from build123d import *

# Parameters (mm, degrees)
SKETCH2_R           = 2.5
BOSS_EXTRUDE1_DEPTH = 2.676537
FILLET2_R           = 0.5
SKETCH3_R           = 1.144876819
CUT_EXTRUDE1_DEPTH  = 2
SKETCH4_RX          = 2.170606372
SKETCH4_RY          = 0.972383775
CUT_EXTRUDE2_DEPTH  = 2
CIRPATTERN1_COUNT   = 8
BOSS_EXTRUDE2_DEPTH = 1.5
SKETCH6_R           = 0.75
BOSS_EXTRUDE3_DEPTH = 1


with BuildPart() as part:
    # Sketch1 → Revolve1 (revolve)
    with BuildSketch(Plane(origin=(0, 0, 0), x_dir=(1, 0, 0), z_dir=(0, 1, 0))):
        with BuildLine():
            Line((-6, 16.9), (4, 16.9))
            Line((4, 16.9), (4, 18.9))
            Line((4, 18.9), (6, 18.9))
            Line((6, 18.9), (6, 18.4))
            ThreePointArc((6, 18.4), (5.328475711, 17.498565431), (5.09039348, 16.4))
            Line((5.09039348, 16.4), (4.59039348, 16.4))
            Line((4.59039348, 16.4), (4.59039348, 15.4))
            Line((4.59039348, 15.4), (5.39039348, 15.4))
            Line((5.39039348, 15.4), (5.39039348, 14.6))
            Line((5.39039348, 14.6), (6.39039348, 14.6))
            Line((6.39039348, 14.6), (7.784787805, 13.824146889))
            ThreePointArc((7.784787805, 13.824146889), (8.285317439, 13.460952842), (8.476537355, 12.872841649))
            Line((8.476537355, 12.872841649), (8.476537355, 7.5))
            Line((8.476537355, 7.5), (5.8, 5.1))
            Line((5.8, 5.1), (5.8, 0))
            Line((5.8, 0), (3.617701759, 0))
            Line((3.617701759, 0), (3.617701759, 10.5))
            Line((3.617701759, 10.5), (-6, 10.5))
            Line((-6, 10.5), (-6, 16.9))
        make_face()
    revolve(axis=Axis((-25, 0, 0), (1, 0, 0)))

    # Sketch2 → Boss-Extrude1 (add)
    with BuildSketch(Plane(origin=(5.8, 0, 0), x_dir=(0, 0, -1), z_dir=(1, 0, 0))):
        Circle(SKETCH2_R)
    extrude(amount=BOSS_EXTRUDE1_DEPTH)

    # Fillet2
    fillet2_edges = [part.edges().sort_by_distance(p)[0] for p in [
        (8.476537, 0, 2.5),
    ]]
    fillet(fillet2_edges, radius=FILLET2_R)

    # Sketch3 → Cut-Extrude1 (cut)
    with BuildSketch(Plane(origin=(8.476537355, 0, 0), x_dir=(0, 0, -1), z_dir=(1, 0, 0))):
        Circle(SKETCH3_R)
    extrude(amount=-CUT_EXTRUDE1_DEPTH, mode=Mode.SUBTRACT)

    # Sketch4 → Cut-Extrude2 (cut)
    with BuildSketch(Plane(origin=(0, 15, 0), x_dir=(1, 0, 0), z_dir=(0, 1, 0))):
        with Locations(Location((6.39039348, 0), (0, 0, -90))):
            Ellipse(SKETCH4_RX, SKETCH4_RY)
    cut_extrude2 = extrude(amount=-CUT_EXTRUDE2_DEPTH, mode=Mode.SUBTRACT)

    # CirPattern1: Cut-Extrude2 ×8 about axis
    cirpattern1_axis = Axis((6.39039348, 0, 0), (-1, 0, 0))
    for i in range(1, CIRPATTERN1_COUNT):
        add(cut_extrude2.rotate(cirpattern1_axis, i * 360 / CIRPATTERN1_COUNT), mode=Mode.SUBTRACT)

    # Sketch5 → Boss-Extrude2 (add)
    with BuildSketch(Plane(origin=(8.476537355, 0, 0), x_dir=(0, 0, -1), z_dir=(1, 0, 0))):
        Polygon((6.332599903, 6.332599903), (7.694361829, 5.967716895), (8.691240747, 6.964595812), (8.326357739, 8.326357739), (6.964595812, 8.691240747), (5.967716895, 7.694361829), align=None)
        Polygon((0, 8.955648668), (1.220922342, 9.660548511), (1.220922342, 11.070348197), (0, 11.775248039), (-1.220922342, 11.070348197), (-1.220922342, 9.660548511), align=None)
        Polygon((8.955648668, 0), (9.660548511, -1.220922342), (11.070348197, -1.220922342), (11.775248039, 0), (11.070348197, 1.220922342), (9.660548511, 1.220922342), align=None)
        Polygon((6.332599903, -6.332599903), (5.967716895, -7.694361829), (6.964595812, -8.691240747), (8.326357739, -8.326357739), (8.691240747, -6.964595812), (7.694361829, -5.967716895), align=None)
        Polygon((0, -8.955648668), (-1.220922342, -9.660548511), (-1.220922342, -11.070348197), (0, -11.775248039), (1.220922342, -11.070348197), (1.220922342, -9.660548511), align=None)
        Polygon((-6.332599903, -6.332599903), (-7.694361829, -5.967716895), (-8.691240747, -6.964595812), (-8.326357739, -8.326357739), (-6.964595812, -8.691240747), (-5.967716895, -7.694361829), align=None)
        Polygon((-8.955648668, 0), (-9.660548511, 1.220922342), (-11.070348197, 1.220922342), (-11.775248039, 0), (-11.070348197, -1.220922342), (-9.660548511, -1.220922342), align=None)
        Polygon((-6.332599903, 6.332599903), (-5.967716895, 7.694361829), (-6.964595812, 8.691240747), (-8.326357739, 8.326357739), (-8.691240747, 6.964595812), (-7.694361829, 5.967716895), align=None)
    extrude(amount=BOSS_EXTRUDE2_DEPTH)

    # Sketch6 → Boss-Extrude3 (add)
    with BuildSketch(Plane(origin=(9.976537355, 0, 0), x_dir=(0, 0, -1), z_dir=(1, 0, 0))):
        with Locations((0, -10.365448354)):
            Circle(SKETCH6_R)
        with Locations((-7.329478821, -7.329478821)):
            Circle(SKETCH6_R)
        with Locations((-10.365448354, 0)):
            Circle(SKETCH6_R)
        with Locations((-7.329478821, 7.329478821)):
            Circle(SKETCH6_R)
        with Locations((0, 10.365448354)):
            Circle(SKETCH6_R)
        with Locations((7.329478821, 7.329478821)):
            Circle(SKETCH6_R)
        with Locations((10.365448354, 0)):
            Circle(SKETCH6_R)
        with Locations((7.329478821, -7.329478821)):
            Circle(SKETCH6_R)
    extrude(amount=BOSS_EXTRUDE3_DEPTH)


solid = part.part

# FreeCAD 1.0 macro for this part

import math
import FreeCAD as App
import Part
import Sketcher
Q = App.Units.Quantity


def edges_at(feature, points):
    """Names of the edges that pass closest to the given points."""
    edges = feature.Shape.Edges
    near = lambda p: min(range(len(edges)), key=lambda i: edges[i].distToShape(Part.Vertex(*p))[0])
    return sorted({f"Edge{near(p) + 1}" for p in points})

doc = App.newDocument("Part")
body = doc.addObject("PartDesign::Body", "Body")

sketch1 = body.newObject("Sketcher::SketchObject", "Sketch")
sketch1.AttachmentSupport = (doc.getObject("XZ_Plane"), [""])
sketch1.MapMode = "FlatFace"
sketch1.addGeometry(Part.LineSegment(App.Vector(4, -16.9, 0), App.Vector(-6, -16.9, 0)), False)
sketch1.addGeometry(Part.LineSegment(App.Vector(-6, -16.9, 0), App.Vector(-6, -10.5, 0)), False)
sketch1.addGeometry(Part.LineSegment(App.Vector(-6, -10.5, 0), App.Vector(3.617702, -10.5, 0)), False)
sketch1.addGeometry(Part.LineSegment(App.Vector(3.617702, -10.5, 0), App.Vector(3.617702, 0, 0)), False)
sketch1.addGeometry(Part.LineSegment(App.Vector(3.617702, 0, 0), App.Vector(5.8, 0, 0)), False)
sketch1.addGeometry(Part.LineSegment(App.Vector(5.8, 0, 0), App.Vector(5.8, -5.1, 0)), False)
sketch1.addGeometry(Part.LineSegment(App.Vector(5.8, -5.1, 0), App.Vector(8.476537, -7.5, 0)), False)
sketch1.addGeometry(Part.LineSegment(App.Vector(8.476537, -7.5, 0), App.Vector(8.476537, -12.872842, 0)), False)
sketch1.addGeometry(Part.ArcOfCircle(Part.Circle(App.Vector(7.476537, -12.872842, 0), App.Vector(0, 0, 1), 1), math.radians(-72.046174), math.radians(0)), False)
sketch1.addGeometry(Part.LineSegment(App.Vector(7.784788, -13.824147, 0), App.Vector(6.390393, -14.6, 0)), False)
sketch1.addGeometry(Part.LineSegment(App.Vector(6.390393, -14.6, 0), App.Vector(5.390393, -14.6, 0)), False)
sketch1.addGeometry(Part.LineSegment(App.Vector(5.390393, -14.6, 0), App.Vector(5.390393, -15.4, 0)), False)
sketch1.addGeometry(Part.LineSegment(App.Vector(5.390393, -15.4, 0), App.Vector(4.590393, -15.4, 0)), False)
sketch1.addGeometry(Part.LineSegment(App.Vector(4.590393, -15.4, 0), App.Vector(4.590393, -16.4, 0)), False)
sketch1.addGeometry(Part.LineSegment(App.Vector(4.590393, -16.4, 0), App.Vector(5.090393, -16.4, 0)), False)
sketch1.addGeometry(Part.ArcOfCircle(Part.Circle(App.Vector(7.74395, -16.4, 0), App.Vector(0, 0, 1), 2.653556), math.radians(180), math.radians(228.912391)), False)
sketch1.addGeometry(Part.LineSegment(App.Vector(6, -18.4, 0), App.Vector(6, -18.9, 0)), False)
sketch1.addGeometry(Part.LineSegment(App.Vector(6, -18.9, 0), App.Vector(4, -18.9, 0)), False)
sketch1.addGeometry(Part.LineSegment(App.Vector(4, -18.9, 0), App.Vector(4, -16.9, 0)), False)
sketch1.addConstraint(Sketcher.Constraint("Coincident", 0, 2, 1, 1))
sketch1.addConstraint(Sketcher.Constraint("Coincident", 1, 2, 2, 1))
sketch1.addConstraint(Sketcher.Constraint("Coincident", 2, 2, 3, 1))
sketch1.addConstraint(Sketcher.Constraint("Coincident", 3, 2, 4, 1))
sketch1.addConstraint(Sketcher.Constraint("Coincident", 4, 2, 5, 1))
sketch1.addConstraint(Sketcher.Constraint("Coincident", 5, 2, 6, 1))
sketch1.addConstraint(Sketcher.Constraint("Coincident", 6, 2, 7, 1))
sketch1.addConstraint(Sketcher.Constraint("Tangent", 7, 2, 8, 2))
sketch1.addConstraint(Sketcher.Constraint("Coincident", 8, 1, 9, 1))
sketch1.addConstraint(Sketcher.Constraint("Coincident", 9, 2, 10, 1))
sketch1.addConstraint(Sketcher.Constraint("Coincident", 10, 2, 11, 1))
sketch1.addConstraint(Sketcher.Constraint("Coincident", 11, 2, 12, 1))
sketch1.addConstraint(Sketcher.Constraint("Coincident", 12, 2, 13, 1))
sketch1.addConstraint(Sketcher.Constraint("Coincident", 13, 2, 14, 1))
sketch1.addConstraint(Sketcher.Constraint("Coincident", 14, 2, 15, 1))
sketch1.addConstraint(Sketcher.Constraint("Coincident", 15, 2, 16, 1))
sketch1.addConstraint(Sketcher.Constraint("Coincident", 16, 2, 17, 1))
sketch1.addConstraint(Sketcher.Constraint("Coincident", 17, 2, 18, 1))
sketch1.addConstraint(Sketcher.Constraint("Coincident", 18, 2, 0, 1))
sketch1.addConstraint(Sketcher.Constraint("Horizontal", 0))
sketch1.addConstraint(Sketcher.Constraint("Vertical", 1))
sketch1.addConstraint(Sketcher.Constraint("Horizontal", 2))
sketch1.addConstraint(Sketcher.Constraint("Vertical", 3))
sketch1.addConstraint(Sketcher.Constraint("Horizontal", 4))
sketch1.addConstraint(Sketcher.Constraint("Vertical", 5))
sketch1.addConstraint(Sketcher.Constraint("Vertical", 7))
sketch1.addConstraint(Sketcher.Constraint("Horizontal", 10))
sketch1.addConstraint(Sketcher.Constraint("Vertical", 11))
sketch1.addConstraint(Sketcher.Constraint("Horizontal", 12))
sketch1.addConstraint(Sketcher.Constraint("Vertical", 13))
sketch1.addConstraint(Sketcher.Constraint("Horizontal", 14))
sketch1.addConstraint(Sketcher.Constraint("Vertical", 16))
sketch1.addConstraint(Sketcher.Constraint("Horizontal", 17))
sketch1.addConstraint(Sketcher.Constraint("Vertical", 18))
sketch1.addConstraint(Sketcher.Constraint("PointOnObject", 3, 2, -1))
sketch1.addConstraint(Sketcher.Constraint("Horizontal", 15, 3, 13, 2))
sketch1.addConstraint(Sketcher.Constraint("Equal", 12, 11))
sketch1.addConstraint(Sketcher.Constraint("Equal", 10, 13))
sketch1.addConstraint(Sketcher.Constraint("Equal", 14, 16))
sketch1.addConstraint(Sketcher.Constraint("Equal", 17, 18))
sketch1.addConstraint(Sketcher.Constraint("Radius", 8, 1.0))
sketch1.addConstraint(Sketcher.Constraint("DistanceX", 0, 2, 0, 1, 10.0))
sketch1.addConstraint(Sketcher.Constraint("DistanceX", 10, 2, 10, 1, 1.0))
sketch1.addConstraint(Sketcher.Constraint("DistanceX", 17, 2, 17, 1, 2.0))
sketch1.addConstraint(Sketcher.Constraint("DistanceX", 12, 2, 12, 1, 0.8))
sketch1.addConstraint(Sketcher.Constraint("DistanceX", 14, 1, 14, 2, 0.5))
sketch1.addConstraint(Sketcher.Constraint("DistanceY", 1, 1, 1, 2, 6.4))
sketch1.addConstraint(Sketcher.Constraint("DistanceY", 3, 1, 3, 2, 10.5))
sketch1.addConstraint(Sketcher.Constraint("DistanceY", 5, 2, 5, 1, 5.1))
sketch1.addConstraint(Sketcher.Constraint("DistanceX", 0, 2, -1, 1, 6.0))
sketch1.addConstraint(Sketcher.Constraint("DistanceY", 2, 2, 6, 2, 3.0))
sketch1.addConstraint(Sketcher.Constraint("DistanceY", 15, 2, 14, 2, 2.0))
sketch1.addConstraint(Sketcher.Constraint("DistanceX", -1, 1, 4, 2, 5.8))
sketch1.addConstraint(Sketcher.Constraint("DistanceX", 2, 1, 2, 2, 9.617702))
sketch1.addConstraint(Sketcher.Constraint("Radius", 15, 2.653556))
sketch1.addConstraint(Sketcher.Constraint("DistanceY", 7, 2, 7, 1, 5.372842))
sketch1.addConstraint(Sketcher.Constraint("DistanceX", 8, 3, 8, 1, 0.30825))
sketch1.addConstraint(Sketcher.Constraint("DistanceX", 15, 3, 8, 1, 0.040838))
revolution = body.newObject("PartDesign::Revolution", "Revolution")
revolution.Profile = sketch1
revolution.ReferenceAxis = (sketch1, ["H_Axis"])
revolution.Angle = 360

sketch2 = body.newObject("Sketcher::SketchObject", "Sketch001")
sketch2.AttachmentSupport = (doc.getObject("YZ_Plane"), [""])
sketch2.MapMode = "FlatFace"
sketch2.AttachmentOffset = App.Placement(App.Vector(0, 0, 5.8), App.Rotation())
sketch2.addGeometry(Part.Circle(App.Vector(0, 0, 0), App.Vector(0, 0, 1), 2.5), False)
sketch2.addConstraint(Sketcher.Constraint("Coincident", 0, 3, -1, 1))
sketch2.addConstraint(Sketcher.Constraint("Diameter", 0, 5.0))
pad1 = body.newObject("PartDesign::Pad", "Pad")
pad1.Profile = sketch2
pad1.Length = 2.676537
doc.recompute()

fillet = body.newObject("PartDesign::Fillet", "Fillet")
fillet.Base = (pad1, edges_at(pad1, [(8.477, 0, 2.5)]))
fillet.Radius = 0.5

sketch3 = body.newObject("Sketcher::SketchObject", "Sketch002")
sketch3.AttachmentSupport = (doc.getObject("YZ_Plane"), [""])
sketch3.MapMode = "FlatFace"
sketch3.AttachmentOffset = App.Placement(App.Vector(0, 0, 8.476537), App.Rotation())
sketch3.addGeometry(Part.Circle(App.Vector(0, 0, 0), App.Vector(0, 0, 1), 1.144877), False)
sketch3.addConstraint(Sketcher.Constraint("Coincident", 0, 3, -1, 1))
sketch3.addConstraint(Sketcher.Constraint("Diameter", 0, 2.289754))
pocket1 = body.newObject("PartDesign::Pocket", "Pocket")
pocket1.Profile = sketch3
pocket1.Length = 2

sketch4 = body.newObject("Sketcher::SketchObject", "Sketch003")
sketch4.AttachmentSupport = (doc.getObject("XZ_Plane"), [""])
sketch4.MapMode = "FlatFace"
sketch4.AttachmentOffset = App.Placement(App.Vector(0, 0, -15), App.Rotation())
sketch4.addGeometry(Part.Ellipse(App.Vector(6.390393, 2.170606, 0), App.Vector(5.41801, 0, 0), App.Vector(6.390393, 0, 0)), False)
sketch4.addConstraint(Sketcher.Constraint("Block", 0))
pocket2 = body.newObject("PartDesign::Pocket", "Pocket001")
pocket2.Profile = sketch4
pocket2.Length = 2
pocket2.Reversed = True
doc.recompute()

polarpattern = body.newObject("PartDesign::PolarPattern", "PolarPattern")
polarpattern.Originals = [pocket2]
polarpattern.Axis = (doc.getObject("X_Axis"), [""])
polarpattern.Angle = 360
polarpattern.Occurrences = 8
body.Tip = polarpattern

sketch5 = body.newObject("Sketcher::SketchObject", "Sketch004")
sketch5.AttachmentSupport = (doc.getObject("YZ_Plane"), [""])
sketch5.MapMode = "FlatFace"
sketch5.AttachmentOffset = App.Placement(App.Vector(0, 0, 8.476537), App.Rotation())
sketch5.addGeometry(Part.LineSegment(App.Vector(6.3326, -6.3326, 0), App.Vector(5.967717, -7.694362, 0)), False)
sketch5.addGeometry(Part.LineSegment(App.Vector(5.967717, -7.694362, 0), App.Vector(6.964596, -8.691241, 0)), False)
sketch5.addGeometry(Part.LineSegment(App.Vector(6.964596, -8.691241, 0), App.Vector(8.326358, -8.326358, 0)), False)
sketch5.addGeometry(Part.LineSegment(App.Vector(8.326358, -8.326358, 0), App.Vector(8.691241, -6.964596, 0)), False)
sketch5.addGeometry(Part.LineSegment(App.Vector(8.691241, -6.964596, 0), App.Vector(7.694362, -5.967717, 0)), False)
sketch5.addGeometry(Part.LineSegment(App.Vector(7.694362, -5.967717, 0), App.Vector(6.3326, -6.3326, 0)), False)
sketch5.addGeometry(Part.LineSegment(App.Vector(8.955649, 0, 0), App.Vector(9.660549, -1.220922, 0)), False)
sketch5.addGeometry(Part.LineSegment(App.Vector(9.660549, -1.220922, 0), App.Vector(11.070348, -1.220922, 0)), False)
sketch5.addGeometry(Part.LineSegment(App.Vector(11.070348, -1.220922, 0), App.Vector(11.775248, 0, 0)), False)
sketch5.addGeometry(Part.LineSegment(App.Vector(11.775248, 0, 0), App.Vector(11.070348, 1.220922, 0)), False)
sketch5.addGeometry(Part.LineSegment(App.Vector(11.070348, 1.220922, 0), App.Vector(9.660549, 1.220922, 0)), False)
sketch5.addGeometry(Part.LineSegment(App.Vector(9.660549, 1.220922, 0), App.Vector(8.955649, 0, 0)), False)
sketch5.addGeometry(Part.LineSegment(App.Vector(0, -8.955649, 0), App.Vector(-1.220922, -9.660549, 0)), False)
sketch5.addGeometry(Part.LineSegment(App.Vector(-1.220922, -9.660549, 0), App.Vector(-1.220922, -11.070348, 0)), False)
sketch5.addGeometry(Part.LineSegment(App.Vector(-1.220922, -11.070348, 0), App.Vector(0, -11.775248, 0)), False)
sketch5.addGeometry(Part.LineSegment(App.Vector(0, -11.775248, 0), App.Vector(1.220922, -11.070348, 0)), False)
sketch5.addGeometry(Part.LineSegment(App.Vector(1.220922, -11.070348, 0), App.Vector(1.220922, -9.660549, 0)), False)
sketch5.addGeometry(Part.LineSegment(App.Vector(1.220922, -9.660549, 0), App.Vector(0, -8.955649, 0)), False)
sketch5.addGeometry(Part.LineSegment(App.Vector(-6.3326, -6.3326, 0), App.Vector(-7.694362, -5.967717, 0)), False)
sketch5.addGeometry(Part.LineSegment(App.Vector(-7.694362, -5.967717, 0), App.Vector(-8.691241, -6.964596, 0)), False)
sketch5.addGeometry(Part.LineSegment(App.Vector(-8.691241, -6.964596, 0), App.Vector(-8.326358, -8.326358, 0)), False)
sketch5.addGeometry(Part.LineSegment(App.Vector(-8.326358, -8.326358, 0), App.Vector(-6.964596, -8.691241, 0)), False)
sketch5.addGeometry(Part.LineSegment(App.Vector(-6.964596, -8.691241, 0), App.Vector(-5.967717, -7.694362, 0)), False)
sketch5.addGeometry(Part.LineSegment(App.Vector(-5.967717, -7.694362, 0), App.Vector(-6.3326, -6.3326, 0)), False)
sketch5.addGeometry(Part.LineSegment(App.Vector(-8.955649, 0, 0), App.Vector(-9.660549, 1.220922, 0)), False)
sketch5.addGeometry(Part.LineSegment(App.Vector(-9.660549, 1.220922, 0), App.Vector(-11.070348, 1.220922, 0)), False)
sketch5.addGeometry(Part.LineSegment(App.Vector(-11.070348, 1.220922, 0), App.Vector(-11.775248, 0, 0)), False)
sketch5.addGeometry(Part.LineSegment(App.Vector(-11.775248, 0, 0), App.Vector(-11.070348, -1.220922, 0)), False)
sketch5.addGeometry(Part.LineSegment(App.Vector(-11.070348, -1.220922, 0), App.Vector(-9.660549, -1.220922, 0)), False)
sketch5.addGeometry(Part.LineSegment(App.Vector(-9.660549, -1.220922, 0), App.Vector(-8.955649, 0, 0)), False)
sketch5.addGeometry(Part.LineSegment(App.Vector(-6.3326, 6.3326, 0), App.Vector(-5.967717, 7.694362, 0)), False)
sketch5.addGeometry(Part.LineSegment(App.Vector(-5.967717, 7.694362, 0), App.Vector(-6.964596, 8.691241, 0)), False)
sketch5.addGeometry(Part.LineSegment(App.Vector(-6.964596, 8.691241, 0), App.Vector(-8.326358, 8.326358, 0)), False)
sketch5.addGeometry(Part.LineSegment(App.Vector(-8.326358, 8.326358, 0), App.Vector(-8.691241, 6.964596, 0)), False)
sketch5.addGeometry(Part.LineSegment(App.Vector(-8.691241, 6.964596, 0), App.Vector(-7.694362, 5.967717, 0)), False)
sketch5.addGeometry(Part.LineSegment(App.Vector(-7.694362, 5.967717, 0), App.Vector(-6.3326, 6.3326, 0)), False)
sketch5.addGeometry(Part.LineSegment(App.Vector(0, 8.955649, 0), App.Vector(1.220922, 9.660549, 0)), False)
sketch5.addGeometry(Part.LineSegment(App.Vector(1.220922, 9.660549, 0), App.Vector(1.220922, 11.070348, 0)), False)
sketch5.addGeometry(Part.LineSegment(App.Vector(1.220922, 11.070348, 0), App.Vector(0, 11.775248, 0)), False)
sketch5.addGeometry(Part.LineSegment(App.Vector(0, 11.775248, 0), App.Vector(-1.220922, 11.070348, 0)), False)
sketch5.addGeometry(Part.LineSegment(App.Vector(-1.220922, 11.070348, 0), App.Vector(-1.220922, 9.660549, 0)), False)
sketch5.addGeometry(Part.LineSegment(App.Vector(-1.220922, 9.660549, 0), App.Vector(0, 8.955649, 0)), False)
sketch5.addGeometry(Part.LineSegment(App.Vector(6.3326, 6.3326, 0), App.Vector(7.694362, 5.967717, 0)), False)
sketch5.addGeometry(Part.LineSegment(App.Vector(7.694362, 5.967717, 0), App.Vector(8.691241, 6.964596, 0)), False)
sketch5.addGeometry(Part.LineSegment(App.Vector(8.691241, 6.964596, 0), App.Vector(8.326358, 8.326358, 0)), False)
sketch5.addGeometry(Part.LineSegment(App.Vector(8.326358, 8.326358, 0), App.Vector(6.964596, 8.691241, 0)), False)
sketch5.addGeometry(Part.LineSegment(App.Vector(6.964596, 8.691241, 0), App.Vector(5.967717, 7.694362, 0)), False)
sketch5.addGeometry(Part.LineSegment(App.Vector(5.967717, 7.694362, 0), App.Vector(6.3326, 6.3326, 0)), False)
sketch5.addConstraint(Sketcher.Constraint("Coincident", 0, 2, 1, 1))
sketch5.addConstraint(Sketcher.Constraint("Coincident", 1, 2, 2, 1))
sketch5.addConstraint(Sketcher.Constraint("Coincident", 2, 2, 3, 1))
sketch5.addConstraint(Sketcher.Constraint("Coincident", 3, 2, 4, 1))
sketch5.addConstraint(Sketcher.Constraint("Coincident", 4, 2, 5, 1))
sketch5.addConstraint(Sketcher.Constraint("Coincident", 5, 2, 0, 1))
sketch5.addConstraint(Sketcher.Constraint("Coincident", 6, 2, 7, 1))
sketch5.addConstraint(Sketcher.Constraint("Coincident", 7, 2, 8, 1))
sketch5.addConstraint(Sketcher.Constraint("Coincident", 8, 2, 9, 1))
sketch5.addConstraint(Sketcher.Constraint("Coincident", 9, 2, 10, 1))
sketch5.addConstraint(Sketcher.Constraint("Coincident", 10, 2, 11, 1))
sketch5.addConstraint(Sketcher.Constraint("Coincident", 11, 2, 6, 1))
sketch5.addConstraint(Sketcher.Constraint("Coincident", 12, 2, 13, 1))
sketch5.addConstraint(Sketcher.Constraint("Coincident", 13, 2, 14, 1))
sketch5.addConstraint(Sketcher.Constraint("Coincident", 14, 2, 15, 1))
sketch5.addConstraint(Sketcher.Constraint("Coincident", 15, 2, 16, 1))
sketch5.addConstraint(Sketcher.Constraint("Coincident", 16, 2, 17, 1))
sketch5.addConstraint(Sketcher.Constraint("Coincident", 17, 2, 12, 1))
sketch5.addConstraint(Sketcher.Constraint("Coincident", 18, 2, 19, 1))
sketch5.addConstraint(Sketcher.Constraint("Coincident", 19, 2, 20, 1))
sketch5.addConstraint(Sketcher.Constraint("Coincident", 20, 2, 21, 1))
sketch5.addConstraint(Sketcher.Constraint("Coincident", 21, 2, 22, 1))
sketch5.addConstraint(Sketcher.Constraint("Coincident", 22, 2, 23, 1))
sketch5.addConstraint(Sketcher.Constraint("Coincident", 23, 2, 18, 1))
sketch5.addConstraint(Sketcher.Constraint("Coincident", 24, 2, 25, 1))
sketch5.addConstraint(Sketcher.Constraint("Coincident", 25, 2, 26, 1))
sketch5.addConstraint(Sketcher.Constraint("Coincident", 26, 2, 27, 1))
sketch5.addConstraint(Sketcher.Constraint("Coincident", 27, 2, 28, 1))
sketch5.addConstraint(Sketcher.Constraint("Coincident", 28, 2, 29, 1))
sketch5.addConstraint(Sketcher.Constraint("Coincident", 29, 2, 24, 1))
sketch5.addConstraint(Sketcher.Constraint("Coincident", 30, 2, 31, 1))
sketch5.addConstraint(Sketcher.Constraint("Coincident", 31, 2, 32, 1))
sketch5.addConstraint(Sketcher.Constraint("Coincident", 32, 2, 33, 1))
sketch5.addConstraint(Sketcher.Constraint("Coincident", 33, 2, 34, 1))
sketch5.addConstraint(Sketcher.Constraint("Coincident", 34, 2, 35, 1))
sketch5.addConstraint(Sketcher.Constraint("Coincident", 35, 2, 30, 1))
sketch5.addConstraint(Sketcher.Constraint("Coincident", 36, 2, 37, 1))
sketch5.addConstraint(Sketcher.Constraint("Coincident", 37, 2, 38, 1))
sketch5.addConstraint(Sketcher.Constraint("Coincident", 38, 2, 39, 1))
sketch5.addConstraint(Sketcher.Constraint("Coincident", 39, 2, 40, 1))
sketch5.addConstraint(Sketcher.Constraint("Coincident", 40, 2, 41, 1))
sketch5.addConstraint(Sketcher.Constraint("Coincident", 41, 2, 36, 1))
sketch5.addConstraint(Sketcher.Constraint("Coincident", 42, 2, 43, 1))
sketch5.addConstraint(Sketcher.Constraint("Coincident", 43, 2, 44, 1))
sketch5.addConstraint(Sketcher.Constraint("Coincident", 44, 2, 45, 1))
sketch5.addConstraint(Sketcher.Constraint("Coincident", 45, 2, 46, 1))
sketch5.addConstraint(Sketcher.Constraint("Coincident", 46, 2, 47, 1))
sketch5.addConstraint(Sketcher.Constraint("Coincident", 47, 2, 42, 1))
sketch5.addConstraint(Sketcher.Constraint("Horizontal", 7))
sketch5.addConstraint(Sketcher.Constraint("Horizontal", 10))
sketch5.addConstraint(Sketcher.Constraint("Vertical", 13))
sketch5.addConstraint(Sketcher.Constraint("Vertical", 16))
sketch5.addConstraint(Sketcher.Constraint("Horizontal", 25))
sketch5.addConstraint(Sketcher.Constraint("Horizontal", 28))
sketch5.addConstraint(Sketcher.Constraint("Vertical", 37))
sketch5.addConstraint(Sketcher.Constraint("Vertical", 40))
sketch5.addConstraint(Sketcher.Constraint("Symmetric", 6, 2, 24, 2, -1, 1))
sketch5.addConstraint(Sketcher.Constraint("Symmetric", 8, 2, 26, 2, -1, 1))
sketch5.addConstraint(Sketcher.Constraint("Symmetric", 9, 2, 27, 2, -1, 1))
sketch5.addConstraint(Sketcher.Constraint("Symmetric", 11, 2, 29, 2, -1, 1))
sketch5.addConstraint(Sketcher.Constraint("Symmetric", 0, 2, 30, 2, -1, 1))
sketch5.addConstraint(Sketcher.Constraint("Symmetric", 1, 2, 31, 2, -1, 1))
sketch5.addConstraint(Sketcher.Constraint("Symmetric", 2, 2, 32, 2, -1, 1))
sketch5.addConstraint(Sketcher.Constraint("Symmetric", 3, 2, 33, 2, -1, 1))
sketch5.addConstraint(Sketcher.Constraint("Symmetric", 4, 2, 34, 2, -1, 1))
sketch5.addConstraint(Sketcher.Constraint("Symmetric", 5, 2, 35, 2, -1, 1))
sketch5.addConstraint(Sketcher.Constraint("Symmetric", 12, 2, 36, 2, -1, 1))
sketch5.addConstraint(Sketcher.Constraint("Symmetric", 14, 2, 38, 2, -1, 1))
sketch5.addConstraint(Sketcher.Constraint("Symmetric", 15, 2, 39, 2, -1, 1))
sketch5.addConstraint(Sketcher.Constraint("Symmetric", 17, 2, 41, 2, -1, 1))
sketch5.addConstraint(Sketcher.Constraint("Symmetric", 18, 2, 42, 2, -1, 1))
sketch5.addConstraint(Sketcher.Constraint("Symmetric", 19, 2, 43, 2, -1, 1))
sketch5.addConstraint(Sketcher.Constraint("Symmetric", 20, 2, 44, 2, -1, 1))
sketch5.addConstraint(Sketcher.Constraint("Symmetric", 21, 2, 45, 2, -1, 1))
sketch5.addConstraint(Sketcher.Constraint("Symmetric", 22, 2, 46, 2, -1, 1))
sketch5.addConstraint(Sketcher.Constraint("Symmetric", 23, 2, 47, 2, -1, 1))
sketch5.addConstraint(Sketcher.Constraint("Symmetric", 13, 2, 15, 2, -2))
sketch5.addConstraint(Sketcher.Constraint("Symmetric", 4, 2, 18, 2, -2))
sketch5.addConstraint(Sketcher.Constraint("Symmetric", 3, 2, 19, 2, -2))
sketch5.addConstraint(Sketcher.Constraint("Symmetric", 2, 2, 20, 2, -2))
sketch5.addConstraint(Sketcher.Constraint("Symmetric", 1, 2, 21, 2, -2))
sketch5.addConstraint(Sketcher.Constraint("Symmetric", 0, 2, 22, 2, -2))
sketch5.addConstraint(Sketcher.Constraint("Symmetric", 5, 2, 23, 2, -2))
sketch5.addConstraint(Sketcher.Constraint("Symmetric", 10, 2, 24, 2, -2))
sketch5.addConstraint(Sketcher.Constraint("PointOnObject", 8, 2, -1))
sketch5.addConstraint(Sketcher.Constraint("PointOnObject", 11, 2, -1))
sketch5.addConstraint(Sketcher.Constraint("PointOnObject", 14, 2, -2))
sketch5.addConstraint(Sketcher.Constraint("PointOnObject", 17, 2, -2))
sketch5.addConstraint(Sketcher.Constraint("Parallel", 0, 3))
sketch5.addConstraint(Sketcher.Constraint("Parallel", 1, 4))
sketch5.addConstraint(Sketcher.Constraint("Parallel", 2, 5))
sketch5.addConstraint(Sketcher.Constraint("Parallel", 6, 9))
sketch5.addConstraint(Sketcher.Constraint("Parallel", 8, 11))
sketch5.addConstraint(Sketcher.Constraint("Perpendicular", 9, 12))
sketch5.addConstraint(Sketcher.Constraint("Perpendicular", 11, 14))
sketch5.addConstraint(Sketcher.Constraint("Parallel", 14, 17))
sketch5.addConstraint(Sketcher.Constraint("Perpendicular", 3, 18))
sketch5.addConstraint(Sketcher.Constraint("Perpendicular", 4, 19))
sketch5.addConstraint(Sketcher.Constraint("Perpendicular", 17, 26))
sketch5.addConstraint(Sketcher.Constraint("Parallel", 26, 29))
sketch5.addConstraint(Sketcher.Constraint("Perpendicular", 29, 38))
sketch5.addConstraint(Sketcher.Constraint("Parallel", 38, 41))
sketch5.addConstraint(Sketcher.Constraint("Equal", 28, 13))
sketch5.addConstraint(Sketcher.Constraint("Equal", 0, 1))
sketch5.addConstraint(Sketcher.Constraint("Equal", 1, 2))
sketch5.addConstraint(Sketcher.Constraint("Equal", 2, 3))
sketch5.addConstraint(Sketcher.Constraint("Equal", 5, 6))
sketch5.addConstraint(Sketcher.Constraint("Equal", 11, 12))
sketch5.addConstraint(Sketcher.Constraint("Angle", 0, Q("-105 deg")))
sketch5.addConstraint(Sketcher.Constraint("Angle", 6, Q("-60 deg")))
sketch5.addConstraint(Sketcher.Constraint("DistanceX", 7, 1, 7, 2, 1.4098))
sketch5.addConstraint(Sketcher.Constraint("Distance", 0, 1.4098))
sketch5.addConstraint(Sketcher.Constraint("DistanceX", -1, 1, 5, 2, 6.3326))
sketch5.addConstraint(Sketcher.Constraint("DistanceY", 5, 2, -1, 1, 6.3326))
sketch5.addConstraint(Sketcher.Constraint("DistanceX", -1, 1, 6, 2, 9.660549))
sketch5.addConstraint(Sketcher.Constraint("DistanceY", 12, 2, -1, 1, 9.660549))
pad2 = body.newObject("PartDesign::Pad", "Pad001")
pad2.Profile = sketch5
pad2.Length = 1.5

sketch6 = body.newObject("Sketcher::SketchObject", "Sketch005")
sketch6.AttachmentSupport = (doc.getObject("YZ_Plane"), [""])
sketch6.MapMode = "FlatFace"
sketch6.AttachmentOffset = App.Placement(App.Vector(0, 0, 9.976537), App.Rotation())
sketch6.addGeometry(Part.Circle(App.Vector(-10.365448, 0, 0), App.Vector(0, 0, 1), 0.75), False)
sketch6.addGeometry(Part.Circle(App.Vector(-7.329479, 7.329479, 0), App.Vector(0, 0, 1), 0.75), False)
sketch6.addGeometry(Part.Circle(App.Vector(0, 10.365448, 0), App.Vector(0, 0, 1), 0.75), False)
sketch6.addGeometry(Part.Circle(App.Vector(7.329479, 7.329479, 0), App.Vector(0, 0, 1), 0.75), False)
sketch6.addGeometry(Part.Circle(App.Vector(10.365448, 0, 0), App.Vector(0, 0, 1), 0.75), False)
sketch6.addGeometry(Part.Circle(App.Vector(7.329479, -7.329479, 0), App.Vector(0, 0, 1), 0.75), False)
sketch6.addGeometry(Part.Circle(App.Vector(0, -10.365448, 0), App.Vector(0, 0, 1), 0.75), False)
sketch6.addGeometry(Part.Circle(App.Vector(-7.329479, -7.329479, 0), App.Vector(0, 0, 1), 0.75), False)
sketch6.addConstraint(Sketcher.Constraint("Equal", 0, 1))
sketch6.addConstraint(Sketcher.Constraint("Equal", 1, 2))
sketch6.addConstraint(Sketcher.Constraint("Equal", 2, 3))
sketch6.addConstraint(Sketcher.Constraint("Equal", 3, 4))
sketch6.addConstraint(Sketcher.Constraint("Equal", 4, 5))
sketch6.addConstraint(Sketcher.Constraint("Equal", 5, 6))
sketch6.addConstraint(Sketcher.Constraint("Equal", 6, 7))
sketch6.addConstraint(Sketcher.Constraint("Symmetric", 0, 3, 4, 3, -1, 1))
sketch6.addConstraint(Sketcher.Constraint("Symmetric", 1, 3, 5, 3, -1, 1))
sketch6.addConstraint(Sketcher.Constraint("Symmetric", 2, 3, 6, 3, -1, 1))
sketch6.addConstraint(Sketcher.Constraint("Symmetric", 3, 3, 7, 3, -1, 1))
sketch6.addConstraint(Sketcher.Constraint("Symmetric", 1, 3, 3, 3, -2))
sketch6.addConstraint(Sketcher.Constraint("PointOnObject", 0, 3, -1))
sketch6.addConstraint(Sketcher.Constraint("PointOnObject", 2, 3, -2))
sketch6.addConstraint(Sketcher.Constraint("Diameter", 0, 1.5))
sketch6.addConstraint(Sketcher.Constraint("DistanceX", 0, 3, -1, 1, 10.365448))
sketch6.addConstraint(Sketcher.Constraint("DistanceX", 1, 3, -1, 1, 7.329479))
sketch6.addConstraint(Sketcher.Constraint("DistanceY", -1, 1, 1, 3, 7.329479))
sketch6.addConstraint(Sketcher.Constraint("DistanceY", -1, 1, 2, 3, 10.365448))
pad3 = body.newObject("PartDesign::Pad", "Pad002")
pad3.Profile = sketch6
pad3.Length = 1

doc.recompute()
